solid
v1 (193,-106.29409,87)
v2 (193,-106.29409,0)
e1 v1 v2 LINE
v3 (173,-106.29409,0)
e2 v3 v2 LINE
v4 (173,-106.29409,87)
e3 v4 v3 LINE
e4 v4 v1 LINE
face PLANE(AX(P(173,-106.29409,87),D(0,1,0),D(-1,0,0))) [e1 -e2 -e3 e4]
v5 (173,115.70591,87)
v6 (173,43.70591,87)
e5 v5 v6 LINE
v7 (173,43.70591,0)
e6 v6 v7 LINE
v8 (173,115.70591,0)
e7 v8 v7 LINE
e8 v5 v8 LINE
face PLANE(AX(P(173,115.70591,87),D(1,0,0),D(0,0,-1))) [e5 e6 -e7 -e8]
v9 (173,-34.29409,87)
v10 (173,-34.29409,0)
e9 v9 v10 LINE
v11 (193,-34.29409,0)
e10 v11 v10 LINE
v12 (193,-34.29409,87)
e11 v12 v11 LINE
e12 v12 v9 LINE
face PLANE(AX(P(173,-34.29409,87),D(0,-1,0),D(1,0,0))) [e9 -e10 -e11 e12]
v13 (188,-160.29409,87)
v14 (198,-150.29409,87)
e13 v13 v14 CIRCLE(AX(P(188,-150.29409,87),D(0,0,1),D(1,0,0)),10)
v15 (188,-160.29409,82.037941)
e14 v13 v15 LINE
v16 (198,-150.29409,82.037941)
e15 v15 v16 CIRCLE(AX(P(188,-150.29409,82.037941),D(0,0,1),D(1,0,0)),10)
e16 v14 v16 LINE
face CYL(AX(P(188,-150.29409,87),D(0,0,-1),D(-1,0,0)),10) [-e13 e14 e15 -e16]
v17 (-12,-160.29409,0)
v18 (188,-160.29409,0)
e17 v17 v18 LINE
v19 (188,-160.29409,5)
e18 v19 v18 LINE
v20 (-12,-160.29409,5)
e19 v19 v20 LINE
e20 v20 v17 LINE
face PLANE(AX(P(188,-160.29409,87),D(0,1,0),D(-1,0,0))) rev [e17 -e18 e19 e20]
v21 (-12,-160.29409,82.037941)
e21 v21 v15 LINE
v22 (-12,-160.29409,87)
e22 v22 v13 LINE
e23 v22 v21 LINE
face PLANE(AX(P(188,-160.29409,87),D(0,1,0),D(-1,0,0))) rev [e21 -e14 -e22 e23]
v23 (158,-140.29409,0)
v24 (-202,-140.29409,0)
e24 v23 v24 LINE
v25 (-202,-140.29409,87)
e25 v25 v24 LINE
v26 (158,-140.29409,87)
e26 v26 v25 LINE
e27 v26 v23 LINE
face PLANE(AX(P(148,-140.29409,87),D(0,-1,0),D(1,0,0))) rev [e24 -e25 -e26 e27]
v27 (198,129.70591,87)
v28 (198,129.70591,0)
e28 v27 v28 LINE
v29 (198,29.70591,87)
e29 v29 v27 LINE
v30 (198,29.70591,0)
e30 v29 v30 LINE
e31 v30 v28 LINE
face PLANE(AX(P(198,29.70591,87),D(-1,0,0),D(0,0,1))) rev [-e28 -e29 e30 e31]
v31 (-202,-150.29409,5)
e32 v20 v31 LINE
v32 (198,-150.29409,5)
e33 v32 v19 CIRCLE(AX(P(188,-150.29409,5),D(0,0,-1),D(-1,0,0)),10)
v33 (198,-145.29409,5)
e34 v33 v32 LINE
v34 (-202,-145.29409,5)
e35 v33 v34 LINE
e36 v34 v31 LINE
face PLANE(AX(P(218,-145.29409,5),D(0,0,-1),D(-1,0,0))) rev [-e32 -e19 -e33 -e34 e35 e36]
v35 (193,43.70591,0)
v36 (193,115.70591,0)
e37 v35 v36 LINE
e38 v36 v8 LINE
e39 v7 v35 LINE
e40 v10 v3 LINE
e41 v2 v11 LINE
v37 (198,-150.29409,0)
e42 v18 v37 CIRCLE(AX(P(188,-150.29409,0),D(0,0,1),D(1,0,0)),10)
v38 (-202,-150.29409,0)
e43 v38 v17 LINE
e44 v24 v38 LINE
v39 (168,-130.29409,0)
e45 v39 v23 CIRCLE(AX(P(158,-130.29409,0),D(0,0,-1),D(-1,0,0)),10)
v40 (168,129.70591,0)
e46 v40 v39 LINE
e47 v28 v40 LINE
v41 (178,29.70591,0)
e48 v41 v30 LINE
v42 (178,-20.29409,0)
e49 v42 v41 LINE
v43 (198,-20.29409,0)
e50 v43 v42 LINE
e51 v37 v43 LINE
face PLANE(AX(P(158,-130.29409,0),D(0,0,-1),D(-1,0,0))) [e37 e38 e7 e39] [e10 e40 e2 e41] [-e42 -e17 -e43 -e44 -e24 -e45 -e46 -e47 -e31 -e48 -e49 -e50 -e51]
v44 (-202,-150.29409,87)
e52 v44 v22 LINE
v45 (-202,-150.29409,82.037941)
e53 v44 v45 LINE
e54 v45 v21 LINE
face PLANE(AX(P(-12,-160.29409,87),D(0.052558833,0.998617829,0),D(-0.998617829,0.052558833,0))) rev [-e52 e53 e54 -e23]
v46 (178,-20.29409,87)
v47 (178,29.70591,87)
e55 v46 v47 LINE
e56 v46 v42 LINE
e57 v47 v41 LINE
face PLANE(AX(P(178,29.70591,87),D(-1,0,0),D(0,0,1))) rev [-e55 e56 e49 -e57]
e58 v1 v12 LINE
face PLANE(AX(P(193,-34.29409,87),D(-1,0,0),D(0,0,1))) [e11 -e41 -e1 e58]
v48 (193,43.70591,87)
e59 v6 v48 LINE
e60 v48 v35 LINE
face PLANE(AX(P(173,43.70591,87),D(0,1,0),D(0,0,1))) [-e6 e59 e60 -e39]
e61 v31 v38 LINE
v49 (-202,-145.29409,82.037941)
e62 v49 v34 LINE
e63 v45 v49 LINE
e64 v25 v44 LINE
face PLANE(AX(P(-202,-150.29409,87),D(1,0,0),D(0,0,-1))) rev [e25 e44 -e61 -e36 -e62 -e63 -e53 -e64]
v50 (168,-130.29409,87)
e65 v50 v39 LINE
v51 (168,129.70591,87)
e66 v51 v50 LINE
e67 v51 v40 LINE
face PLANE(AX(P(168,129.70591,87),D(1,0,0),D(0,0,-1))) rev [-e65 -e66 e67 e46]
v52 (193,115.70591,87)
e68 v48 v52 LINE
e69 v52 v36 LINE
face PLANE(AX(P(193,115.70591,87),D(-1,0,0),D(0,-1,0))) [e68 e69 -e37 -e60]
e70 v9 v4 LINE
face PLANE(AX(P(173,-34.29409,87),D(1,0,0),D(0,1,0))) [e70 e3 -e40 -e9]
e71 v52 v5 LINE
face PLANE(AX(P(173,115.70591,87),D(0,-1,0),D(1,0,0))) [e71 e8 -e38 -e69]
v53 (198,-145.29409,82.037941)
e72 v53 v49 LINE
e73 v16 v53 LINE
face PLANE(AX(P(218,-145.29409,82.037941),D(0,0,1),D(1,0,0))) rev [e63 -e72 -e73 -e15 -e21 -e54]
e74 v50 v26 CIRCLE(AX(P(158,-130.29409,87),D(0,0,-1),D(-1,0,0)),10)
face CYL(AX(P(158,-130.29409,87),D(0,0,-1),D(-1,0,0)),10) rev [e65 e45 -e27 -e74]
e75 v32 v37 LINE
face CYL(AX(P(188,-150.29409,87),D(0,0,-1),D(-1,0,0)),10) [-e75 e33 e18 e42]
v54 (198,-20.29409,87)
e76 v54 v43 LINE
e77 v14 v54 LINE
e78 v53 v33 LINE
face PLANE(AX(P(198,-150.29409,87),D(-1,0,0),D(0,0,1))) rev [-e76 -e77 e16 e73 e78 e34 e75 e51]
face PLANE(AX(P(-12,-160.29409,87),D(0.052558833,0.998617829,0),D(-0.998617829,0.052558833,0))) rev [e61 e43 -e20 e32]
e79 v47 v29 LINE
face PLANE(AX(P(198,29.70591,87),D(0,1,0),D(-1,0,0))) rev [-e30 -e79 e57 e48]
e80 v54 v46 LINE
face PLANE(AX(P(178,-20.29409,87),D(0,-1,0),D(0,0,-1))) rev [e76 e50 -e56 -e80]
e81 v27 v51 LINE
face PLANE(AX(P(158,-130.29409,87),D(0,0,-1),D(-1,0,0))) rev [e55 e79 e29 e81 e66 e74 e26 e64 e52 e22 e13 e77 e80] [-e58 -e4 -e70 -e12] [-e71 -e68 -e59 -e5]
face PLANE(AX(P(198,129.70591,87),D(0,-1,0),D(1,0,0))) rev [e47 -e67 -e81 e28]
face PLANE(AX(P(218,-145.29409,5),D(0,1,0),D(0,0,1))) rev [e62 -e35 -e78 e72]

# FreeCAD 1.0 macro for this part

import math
import FreeCAD as App
import Part
import Sketcher


def add_polygon(sketch, points):
    """Adds a closed chain of lines whose ends are joined by coincident constraints."""
    first, n = sketch.GeometryCount, len(points)
    for a, b in zip(points, points[1:] + points[:1]):
        sketch.addGeometry(Part.LineSegment(App.Vector(*a, 0), App.Vector(*b, 0)), False)
    for i in range(n):
        sketch.addConstraint(Sketcher.Constraint("Coincident", first + i, 2, first + (i + 1) % n, 1))

doc = App.newDocument("Part")
body = doc.addObject("PartDesign::Body", "Body")

# Sketch on XY plane
sketch1 = doc.addObject("Sketcher::SketchObject", "Sketch")
body.addObject(sketch1)
sketch1.AttachmentSupport = (doc.XY_Plane, [""])
sketch1.MapMode = "FlatFace"
sketch1.addGeometry(Part.LineSegment(App.Vector(-202, -140, 0), App.Vector(-202, -150, 0)), False)  # 0
sketch1.addGeometry(Part.LineSegment(App.Vector(-202, -150, 0), App.Vector(-12, -160, 0)), False)  # 1
sketch1.addGeometry(Part.LineSegment(App.Vector(-12, -160, 0), App.Vector(188, -160, 0)), False)  # 2
sketch1.addGeometry(Part.ArcOfCircle(Part.Circle(App.Vector(188, -150, 0), App.Vector(0, 0, 1), 10), math.radians(-90), math.radians(0)), False)  # 3
sketch1.addGeometry(Part.LineSegment(App.Vector(198, -150, 0), App.Vector(198, -20, 0)), False)  # 4
sketch1.addGeometry(Part.LineSegment(App.Vector(198, -20, 0), App.Vector(178, -20, 0)), False)  # 5
sketch1.addGeometry(Part.LineSegment(App.Vector(178, -20, 0), App.Vector(178, 30, 0)), False)  # 6
sketch1.addGeometry(Part.LineSegment(App.Vector(178, 30, 0), App.Vector(198, 30, 0)), False)  # 7
sketch1.addGeometry(Part.LineSegment(App.Vector(198, 30, 0), App.Vector(198, 130, 0)), False)  # 8
sketch1.addGeometry(Part.LineSegment(App.Vector(198, 130, 0), App.Vector(168, 130, 0)), False)  # 9
sketch1.addGeometry(Part.LineSegment(App.Vector(168, 130, 0), App.Vector(168, -130, 0)), False)  # 10
sketch1.addGeometry(Part.ArcOfCircle(Part.Circle(App.Vector(158, -130, 0), App.Vector(0, 0, 1), 10), math.radians(-90), math.radians(0)), False)  # 11
sketch1.addGeometry(Part.LineSegment(App.Vector(158, -140, 0), App.Vector(-202, -140, 0)), False)  # 12
add_polygon(sketch1, [(173, -106), (173, -34), (193, -34), (193, -106)])  # lines 13-16
add_polygon(sketch1, [(173, 44), (173, 116), (193, 116), (193, 44)])  # lines 17-20
sketch1.addConstraint([
    Sketcher.Constraint("Coincident", 0, 2, 1, 1),
    Sketcher.Constraint("Coincident", 1, 2, 2, 1),
    Sketcher.Constraint("Tangent", 2, 2, 3, 1),
    Sketcher.Constraint("Tangent", 3, 2, 4, 1),
    Sketcher.Constraint("Coincident", 4, 2, 5, 1),
    Sketcher.Constraint("Coincident", 5, 2, 6, 1),
    Sketcher.Constraint("Coincident", 6, 2, 7, 1),
    Sketcher.Constraint("Coincident", 7, 2, 8, 1),
    Sketcher.Constraint("Coincident", 8, 2, 9, 1),
    Sketcher.Constraint("Coincident", 9, 2, 10, 1),
    Sketcher.Constraint("Tangent", 10, 2, 11, 2),
    Sketcher.Constraint("Tangent", 11, 1, 12, 1),
    Sketcher.Constraint("Coincident", 12, 2, 0, 1),
    Sketcher.Constraint("Vertical", 0),
    Sketcher.Constraint("Horizontal", 2),
    Sketcher.Constraint("Vertical", 4),
    Sketcher.Constraint("Horizontal", 5),
    Sketcher.Constraint("Vertical", 6),
    Sketcher.Constraint("Horizontal", 7),
    Sketcher.Constraint("Vertical", 8),
    Sketcher.Constraint("Horizontal", 9),
    Sketcher.Constraint("Vertical", 10),
    Sketcher.Constraint("Horizontal", 12),
    Sketcher.Constraint("Vertical", 13),
    Sketcher.Constraint("Horizontal", 14),
    Sketcher.Constraint("Vertical", 15),
    Sketcher.Constraint("Horizontal", 16),
    Sketcher.Constraint("Vertical", 17),
    Sketcher.Constraint("Horizontal", 18),
    Sketcher.Constraint("Vertical", 19),
    Sketcher.Constraint("Horizontal", 20),
    Sketcher.Constraint("Equal", 3, 11),
    Sketcher.Constraint("Horizontal", 3, 3, 0, 2),
    Sketcher.Constraint("Vertical", 4, 2, 7, 2),
    Sketcher.Constraint("Vertical", 16, 2, 17, 2),
    Sketcher.Constraint("Vertical", 15, 2, 18, 2),
    Sketcher.Constraint("Equal", 7, 14),
    Sketcher.Constraint("Equal", 15, 17),
    Sketcher.Constraint("Radius", 3, 10.0),
    Sketcher.Constraint("DistanceX", 2, 1, 2, 2, 200.0),
    Sketcher.Constraint("DistanceX", 5, 2, 5, 1, 20.0),
    Sketcher.Constraint("DistanceX", 9, 2, 9, 1, 30.0),
    Sketcher.Constraint("DistanceX", 12, 2, 12, 1, 360.0),
    Sketcher.Constraint("DistanceY", 0, 2, 0, 1, 10.0),
    Sketcher.Constraint("DistanceY", 4, 1, 4, 2, 130.0),
    Sketcher.Constraint("DistanceY", 6, 1, 6, 2, 50.0),
    Sketcher.Constraint("DistanceY", 8, 1, 8, 2, 100.0),
    Sketcher.Constraint("DistanceY", 13, 1, 13, 2, 72.0),
    Sketcher.Constraint("DistanceX", -1, 1, 3, 3, 188.0),
    Sketcher.Constraint("DistanceX", -1, 1, 13, 2, 173.0),
    Sketcher.Constraint("DistanceY", 13, 2, 5, 2, 14.0),
    Sketcher.Constraint("DistanceY", 17, 2, 9, 2, 14.0),
    Sketcher.Constraint("DistanceY", 3, 3, -1, 1, 150.29409),
])
pad1 = doc.addObject("PartDesign::Pad", "Pad")
body.addObject(pad1)
pad1.Profile = sketch1
pad1.Length = 87

# Sketch on YZ plane
sketch2 = doc.addObject("Sketcher::SketchObject", "Sketch001")
body.addObject(sketch2)
sketch2.AttachmentSupport = (doc.YZ_Plane, [""])
sketch2.MapMode = "FlatFace"
sketch2.AttachmentOffset = App.Placement(App.Vector(0, 0, -202), App.Rotation())
add_polygon(sketch2, [(-145, 5), (-164, 5), (-164, 82), (-145, 82)])  # lines 0-3
sketch2.addConstraint([
    Sketcher.Constraint("Horizontal", 0),
    Sketcher.Constraint("Vertical", 1),
    Sketcher.Constraint("Horizontal", 2),
    Sketcher.Constraint("Vertical", 3),
    Sketcher.Constraint("DistanceY", -1, 1, 0, 2, 5.0),
    Sketcher.Constraint("DistanceY", 1, 1, 1, 2, 77.037941),
    Sketcher.Constraint("DistanceX", 0, 2, 0, 1, 18.412853),
    Sketcher.Constraint("DistanceX", 2, 2, -1, 1, 145.29409),
])
pocket1 = doc.addObject("PartDesign::Pocket", "Pocket")
body.addObject(pocket1)
pocket1.Profile = sketch2
pocket1.Length = 420
pocket1.Reversed = True

doc.recompute()
